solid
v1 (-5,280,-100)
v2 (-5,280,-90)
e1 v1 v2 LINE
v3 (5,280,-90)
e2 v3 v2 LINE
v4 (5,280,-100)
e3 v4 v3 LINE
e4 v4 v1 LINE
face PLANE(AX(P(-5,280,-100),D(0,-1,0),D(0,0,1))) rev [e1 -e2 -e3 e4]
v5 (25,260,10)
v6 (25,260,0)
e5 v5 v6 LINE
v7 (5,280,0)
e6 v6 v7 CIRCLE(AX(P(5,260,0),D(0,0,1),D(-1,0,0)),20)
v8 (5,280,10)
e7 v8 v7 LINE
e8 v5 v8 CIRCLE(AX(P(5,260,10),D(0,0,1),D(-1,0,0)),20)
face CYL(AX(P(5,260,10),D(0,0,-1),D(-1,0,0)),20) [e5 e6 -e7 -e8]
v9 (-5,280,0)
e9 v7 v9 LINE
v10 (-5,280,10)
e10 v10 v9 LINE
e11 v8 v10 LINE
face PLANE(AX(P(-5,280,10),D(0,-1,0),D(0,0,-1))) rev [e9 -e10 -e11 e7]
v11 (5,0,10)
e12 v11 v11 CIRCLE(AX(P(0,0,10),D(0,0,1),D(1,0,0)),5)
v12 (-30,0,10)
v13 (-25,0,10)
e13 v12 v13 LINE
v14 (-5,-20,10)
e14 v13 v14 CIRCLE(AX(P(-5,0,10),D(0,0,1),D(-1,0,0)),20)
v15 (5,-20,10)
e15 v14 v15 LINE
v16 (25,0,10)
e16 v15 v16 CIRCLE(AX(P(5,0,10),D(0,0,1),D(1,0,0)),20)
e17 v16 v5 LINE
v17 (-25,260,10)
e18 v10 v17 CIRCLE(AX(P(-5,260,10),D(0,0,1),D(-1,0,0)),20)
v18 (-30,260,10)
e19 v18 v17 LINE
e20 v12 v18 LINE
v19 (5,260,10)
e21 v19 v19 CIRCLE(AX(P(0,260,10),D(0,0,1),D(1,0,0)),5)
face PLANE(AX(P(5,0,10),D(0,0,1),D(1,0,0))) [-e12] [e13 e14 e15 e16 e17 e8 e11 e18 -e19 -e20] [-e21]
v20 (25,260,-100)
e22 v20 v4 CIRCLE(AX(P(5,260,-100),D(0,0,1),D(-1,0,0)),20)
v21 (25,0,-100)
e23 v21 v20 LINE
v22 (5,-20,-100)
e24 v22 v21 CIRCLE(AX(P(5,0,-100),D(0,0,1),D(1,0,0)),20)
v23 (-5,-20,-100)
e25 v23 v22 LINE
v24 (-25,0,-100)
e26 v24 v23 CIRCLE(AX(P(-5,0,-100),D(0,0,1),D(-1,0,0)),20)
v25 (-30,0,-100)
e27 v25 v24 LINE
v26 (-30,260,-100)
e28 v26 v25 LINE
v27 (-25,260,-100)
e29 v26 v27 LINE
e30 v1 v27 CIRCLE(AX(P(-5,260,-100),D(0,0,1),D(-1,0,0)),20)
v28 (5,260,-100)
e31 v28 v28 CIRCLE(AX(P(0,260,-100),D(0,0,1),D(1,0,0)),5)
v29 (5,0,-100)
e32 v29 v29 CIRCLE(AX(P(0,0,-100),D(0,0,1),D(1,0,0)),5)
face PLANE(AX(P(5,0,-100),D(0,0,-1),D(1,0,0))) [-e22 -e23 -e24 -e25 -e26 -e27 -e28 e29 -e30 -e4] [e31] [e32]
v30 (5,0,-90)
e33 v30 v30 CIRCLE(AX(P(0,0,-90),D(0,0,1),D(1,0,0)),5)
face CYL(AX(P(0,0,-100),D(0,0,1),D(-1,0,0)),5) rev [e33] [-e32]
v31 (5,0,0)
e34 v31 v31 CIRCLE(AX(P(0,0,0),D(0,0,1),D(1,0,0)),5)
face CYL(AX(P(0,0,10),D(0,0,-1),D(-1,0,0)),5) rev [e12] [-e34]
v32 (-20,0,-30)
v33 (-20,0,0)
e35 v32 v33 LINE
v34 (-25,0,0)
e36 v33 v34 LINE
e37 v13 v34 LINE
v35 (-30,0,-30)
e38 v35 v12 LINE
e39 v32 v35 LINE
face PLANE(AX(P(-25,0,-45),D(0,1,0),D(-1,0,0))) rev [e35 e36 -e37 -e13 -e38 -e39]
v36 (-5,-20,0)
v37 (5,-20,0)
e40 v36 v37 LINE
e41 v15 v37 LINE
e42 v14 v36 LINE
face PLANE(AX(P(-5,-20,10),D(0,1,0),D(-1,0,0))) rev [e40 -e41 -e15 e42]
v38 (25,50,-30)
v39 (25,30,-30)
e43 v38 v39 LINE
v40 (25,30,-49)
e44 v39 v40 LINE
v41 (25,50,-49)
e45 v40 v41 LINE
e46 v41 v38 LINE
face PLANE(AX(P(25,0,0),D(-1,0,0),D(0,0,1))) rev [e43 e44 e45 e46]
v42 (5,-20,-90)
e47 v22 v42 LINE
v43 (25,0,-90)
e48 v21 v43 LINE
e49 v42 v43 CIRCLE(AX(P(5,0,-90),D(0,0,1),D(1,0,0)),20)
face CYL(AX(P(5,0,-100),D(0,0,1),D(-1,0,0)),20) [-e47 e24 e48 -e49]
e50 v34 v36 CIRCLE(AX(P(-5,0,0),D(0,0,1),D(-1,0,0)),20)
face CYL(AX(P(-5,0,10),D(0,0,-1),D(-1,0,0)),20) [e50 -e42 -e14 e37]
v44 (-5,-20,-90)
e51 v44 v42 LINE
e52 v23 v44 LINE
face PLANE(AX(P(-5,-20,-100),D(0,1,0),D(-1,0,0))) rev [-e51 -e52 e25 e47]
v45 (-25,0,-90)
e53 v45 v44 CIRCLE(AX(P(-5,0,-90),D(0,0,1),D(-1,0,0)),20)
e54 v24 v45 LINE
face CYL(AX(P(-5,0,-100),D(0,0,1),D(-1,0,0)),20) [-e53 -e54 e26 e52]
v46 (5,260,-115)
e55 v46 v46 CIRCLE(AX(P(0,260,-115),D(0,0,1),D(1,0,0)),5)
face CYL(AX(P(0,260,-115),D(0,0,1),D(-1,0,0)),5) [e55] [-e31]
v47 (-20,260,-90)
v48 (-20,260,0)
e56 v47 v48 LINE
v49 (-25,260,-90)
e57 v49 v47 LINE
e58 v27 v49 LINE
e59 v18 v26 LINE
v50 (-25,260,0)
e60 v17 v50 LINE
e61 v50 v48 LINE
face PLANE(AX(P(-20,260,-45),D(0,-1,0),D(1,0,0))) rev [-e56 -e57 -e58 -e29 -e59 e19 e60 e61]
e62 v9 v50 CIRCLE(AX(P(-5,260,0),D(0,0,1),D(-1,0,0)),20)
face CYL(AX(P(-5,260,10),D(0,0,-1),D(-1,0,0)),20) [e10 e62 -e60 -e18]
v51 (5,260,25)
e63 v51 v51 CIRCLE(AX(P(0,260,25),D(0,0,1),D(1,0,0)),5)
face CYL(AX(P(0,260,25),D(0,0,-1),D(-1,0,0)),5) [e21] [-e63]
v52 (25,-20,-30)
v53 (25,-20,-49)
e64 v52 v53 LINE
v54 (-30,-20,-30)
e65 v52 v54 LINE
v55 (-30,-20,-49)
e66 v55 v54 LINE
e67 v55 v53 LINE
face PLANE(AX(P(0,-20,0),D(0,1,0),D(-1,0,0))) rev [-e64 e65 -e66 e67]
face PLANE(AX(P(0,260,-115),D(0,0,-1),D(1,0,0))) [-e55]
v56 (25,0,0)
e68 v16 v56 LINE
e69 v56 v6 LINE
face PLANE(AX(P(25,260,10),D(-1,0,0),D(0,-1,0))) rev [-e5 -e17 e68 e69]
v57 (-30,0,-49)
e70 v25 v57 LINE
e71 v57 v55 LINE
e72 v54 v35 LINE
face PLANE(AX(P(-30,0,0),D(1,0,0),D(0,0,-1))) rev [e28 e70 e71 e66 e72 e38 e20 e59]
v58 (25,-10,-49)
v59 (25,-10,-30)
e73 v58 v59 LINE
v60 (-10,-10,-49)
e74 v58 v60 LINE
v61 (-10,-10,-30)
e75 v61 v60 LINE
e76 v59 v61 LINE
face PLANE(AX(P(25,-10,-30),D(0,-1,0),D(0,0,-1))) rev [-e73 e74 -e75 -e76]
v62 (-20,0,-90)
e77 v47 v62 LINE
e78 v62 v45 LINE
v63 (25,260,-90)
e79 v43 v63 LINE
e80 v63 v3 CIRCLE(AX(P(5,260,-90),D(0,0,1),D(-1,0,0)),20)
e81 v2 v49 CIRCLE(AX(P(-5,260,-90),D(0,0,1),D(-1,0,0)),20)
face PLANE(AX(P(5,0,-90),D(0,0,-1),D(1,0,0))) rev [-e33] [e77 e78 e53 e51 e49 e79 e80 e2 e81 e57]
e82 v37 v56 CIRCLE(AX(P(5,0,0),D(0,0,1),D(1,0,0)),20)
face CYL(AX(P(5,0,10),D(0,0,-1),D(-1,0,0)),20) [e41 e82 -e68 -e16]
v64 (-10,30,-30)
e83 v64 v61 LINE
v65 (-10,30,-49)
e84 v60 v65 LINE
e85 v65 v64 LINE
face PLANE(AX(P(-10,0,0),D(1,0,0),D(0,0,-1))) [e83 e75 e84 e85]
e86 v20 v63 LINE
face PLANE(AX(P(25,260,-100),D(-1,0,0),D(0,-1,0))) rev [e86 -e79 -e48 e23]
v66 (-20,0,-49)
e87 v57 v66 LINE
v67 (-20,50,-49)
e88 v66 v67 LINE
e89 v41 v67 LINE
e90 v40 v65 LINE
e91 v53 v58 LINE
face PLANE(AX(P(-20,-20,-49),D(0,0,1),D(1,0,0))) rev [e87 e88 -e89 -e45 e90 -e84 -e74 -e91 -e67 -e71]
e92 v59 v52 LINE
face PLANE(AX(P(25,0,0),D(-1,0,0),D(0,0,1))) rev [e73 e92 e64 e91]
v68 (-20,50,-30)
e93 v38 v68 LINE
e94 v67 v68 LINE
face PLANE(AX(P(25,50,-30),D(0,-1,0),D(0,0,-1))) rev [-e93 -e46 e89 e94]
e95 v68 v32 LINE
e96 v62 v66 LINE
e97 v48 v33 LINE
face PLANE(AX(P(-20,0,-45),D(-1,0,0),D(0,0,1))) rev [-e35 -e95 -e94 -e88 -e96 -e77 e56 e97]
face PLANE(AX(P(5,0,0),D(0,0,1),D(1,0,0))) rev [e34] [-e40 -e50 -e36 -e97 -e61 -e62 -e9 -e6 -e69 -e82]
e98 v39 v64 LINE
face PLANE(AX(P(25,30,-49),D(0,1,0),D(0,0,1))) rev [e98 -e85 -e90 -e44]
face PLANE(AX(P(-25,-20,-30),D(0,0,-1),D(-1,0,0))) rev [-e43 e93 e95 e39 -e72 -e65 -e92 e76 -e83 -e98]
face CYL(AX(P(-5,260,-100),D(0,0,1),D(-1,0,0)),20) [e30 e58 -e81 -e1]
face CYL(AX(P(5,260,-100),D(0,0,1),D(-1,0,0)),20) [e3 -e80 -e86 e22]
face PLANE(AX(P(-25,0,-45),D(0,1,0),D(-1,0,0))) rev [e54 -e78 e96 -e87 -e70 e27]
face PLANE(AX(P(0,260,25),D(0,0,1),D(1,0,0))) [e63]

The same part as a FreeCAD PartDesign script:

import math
import FreeCAD as App
import Part
import Sketcher
from FreeCAD import Vector


def add_polygon(sketch, points):
    """Adds a closed chain of lines whose ends are joined by coincident constraints."""
    first, n = sketch.GeometryCount, len(points)
    for a, b in zip(points, points[1:] + points[:1]):
        sketch.addGeometry(Part.LineSegment(App.Vector(*a, 0), App.Vector(*b, 0)), False)
    for i in range(n):
        sketch.addConstraint(Sketcher.Constraint("Coincident", first + i, 2, first + (i + 1) % n, 1))

doc = App.newDocument("Part")
body = doc.addObject("PartDesign::Body", "Body")

sketch1 = body.newObject("Sketcher::SketchObject", "Sketch")
sketch1.AttachmentSupport = (doc.getObject("XY_Plane"), [""])
sketch1.MapMode = "FlatFace"
sketch1.addGeometry(Part.LineSegment(Vector(-5, -20, 0), Vector(5, -20, 0)), False)
sketch1.addGeometry(Part.ArcOfCircle(Part.Circle(Vector(5, 0, 0), Vector(0, 0, 1), 20), math.radians(-90), math.radians(0)), False)
sketch1.addGeometry(Part.LineSegment(Vector(25, 0, 0), Vector(25, 260, 0)), False)
sketch1.addGeometry(Part.ArcOfCircle(Part.Circle(Vector(5, 260, 0), Vector(0, 0, 1), 20), math.radians(0), math.radians(90)), False)
sketch1.addGeometry(Part.LineSegment(Vector(5, 280, 0), Vector(-5, 280, 0)), False)
sketch1.addGeometry(Part.ArcOfCircle(Part.Circle(Vector(-5, 260, 0), Vector(0, 0, 1), 20), math.radians(90), math.radians(180)), False)
sketch1.addGeometry(Part.LineSegment(Vector(-25, 260, 0), Vector(-25, 0, 0)), False)
sketch1.addGeometry(Part.ArcOfCircle(Part.Circle(Vector(-5, 0, 0), Vector(0, 0, 1), 20), math.radians(180), math.radians(270)), False)
sketch1.addGeometry(Part.Circle(Vector(0, 0, 0), Vector(0, 0, 1), 5), False)
sketch1.addConstraint(Sketcher.Constraint("Tangent", 0, 2, 1, 1))
sketch1.addConstraint(Sketcher.Constraint("Tangent", 1, 2, 2, 1))
sketch1.addConstraint(Sketcher.Constraint("Tangent", 2, 2, 3, 1))
sketch1.addConstraint(Sketcher.Constraint("Tangent", 3, 2, 4, 1))
sketch1.addConstraint(Sketcher.Constraint("Tangent", 4, 2, 5, 1))
sketch1.addConstraint(Sketcher.Constraint("Tangent", 5, 2, 6, 1))
sketch1.addConstraint(Sketcher.Constraint("Tangent", 6, 2, 7, 1))
sketch1.addConstraint(Sketcher.Constraint("Tangent", 7, 2, 0, 1))
sketch1.addConstraint(Sketcher.Constraint("Horizontal", 0))
sketch1.addConstraint(Sketcher.Constraint("Vertical", 2))
sketch1.addConstraint(Sketcher.Constraint("Horizontal", 4))
sketch1.addConstraint(Sketcher.Constraint("Vertical", 6))
sketch1.addConstraint(Sketcher.Constraint("Coincident", 8, 3, -1, 1))
sketch1.addConstraint(Sketcher.Constraint("Equal", 1, 3))
sketch1.addConstraint(Sketcher.Constraint("Equal", 3, 5))
sketch1.addConstraint(Sketcher.Constraint("Equal", 5, 7))
sketch1.addConstraint(Sketcher.Constraint("Symmetric", 1, 3, 7, 3, -1, 1))
sketch1.addConstraint(Sketcher.Constraint("Diameter", 8, 10.0))
sketch1.addConstraint(Sketcher.Constraint("Radius", 1, 20.0))
sketch1.addConstraint(Sketcher.Constraint("DistanceX", 0, 1, 0, 2, 10.0))
sketch1.addConstraint(Sketcher.Constraint("DistanceY", 2, 1, 2, 2, 260.0))
pad1 = body.newObject("PartDesign::Pad", "Pad")
pad1.Profile = sketch1
pad1.Length = 10

sketch2 = body.newObject("Sketcher::SketchObject", "Sketch001")
sketch2.AttachmentSupport = (doc.getObject("XY_Plane"), [""])
sketch2.MapMode = "FlatFace"
sketch2.AttachmentOffset = App.Placement(Vector(0, 0, 10), App.Rotation())
sketch2.addGeometry(Part.Circle(Vector(0, 260, 0), Vector(0, 0, 1), 5), False)
sketch2.addConstraint(Sketcher.Constraint("PointOnObject", 0, 3, -2))
sketch2.addConstraint(Sketcher.Constraint("Diameter", 0, 10.0))
sketch2.addConstraint(Sketcher.Constraint("DistanceY", -1, 1, 0, 3, 260.0))
pad2 = body.newObject("PartDesign::Pad", "Pad001")
pad2.Profile = sketch2
pad2.Length = 15

sketch3 = body.newObject("Sketcher::SketchObject", "Sketch002")
sketch3.AttachmentSupport = (doc.getObject("XY_Plane"), [""])
sketch3.MapMode = "FlatFace"
add_polygon(sketch3, [(-20, 260), (-20, 0), (-25, 0), (-25, 260)])
sketch3.addConstraint(Sketcher.Constraint("Vertical", 0))
sketch3.addConstraint(Sketcher.Constraint("Horizontal", 1))
sketch3.addConstraint(Sketcher.Constraint("Vertical", 2))
sketch3.addConstraint(Sketcher.Constraint("Horizontal", 3))
sketch3.addConstraint(Sketcher.Constraint("PointOnObject", 0, 2, -1))
sketch3.addConstraint(Sketcher.Constraint("DistanceX", 1, 2, 1, 1, 5.0))
sketch3.addConstraint(Sketcher.Constraint("DistanceY", 0, 2, 0, 1, 260.0))
sketch3.addConstraint(Sketcher.Constraint("DistanceX", 0, 2, -1, 1, 20.0))
pad3 = body.newObject("PartDesign::Pad", "Pad002")
pad3.Profile = sketch3
pad3.Length = 45
pad3.Reversed = True
doc.recompute()

datumplane = body.newObject("PartDesign::Plane", "DatumPlane")
datumplane.AttachmentSupport = (doc.getObject("XY_Plane"), [""])
datumplane.MapMode = "FlatFace"
datumplane.AttachmentOffset = App.Placement(Vector(0, 0, -45), App.Rotation())
mirrored = body.newObject("PartDesign::Mirrored", "Mirrored")
mirrored.Originals = [pad1, pad2, pad3]
mirrored.MirrorPlane = (datumplane, [""])
body.Tip = mirrored

sketch4 = body.newObject("Sketcher::SketchObject", "Sketch003")
sketch4.AttachmentSupport = (doc.getObject("XZ_Plane"), [""])
sketch4.MapMode = "FlatFace"
add_polygon(sketch4, [(-25, -30), (-25, -49), (-20, -49), (-20, -30)])
sketch4.addConstraint(Sketcher.Constraint("Vertical", 0))
sketch4.addConstraint(Sketcher.Constraint("Horizontal", 1))
sketch4.addConstraint(Sketcher.Constraint("Vertical", 2))
sketch4.addConstraint(Sketcher.Constraint("Horizontal", 3))
sketch4.addConstraint(Sketcher.Constraint("DistanceX", 1, 1, 1, 2, 5.0))
sketch4.addConstraint(Sketcher.Constraint("DistanceY", 0, 2, 0, 1, 19.0))
sketch4.addConstraint(Sketcher.Constraint("DistanceX", 0, 2, -1, 1, 25.0))
sketch4.addConstraint(Sketcher.Constraint("DistanceY", 0, 2, -1, 1, 49.0))
pad4 = body.newObject("PartDesign::Pad", "Pad003")
pad4.Profile = sketch4
pad4.Length = 20

sketch5 = body.newObject("Sketcher::SketchObject", "Sketch004")
sketch5.AttachmentSupport = (doc.getObject("YZ_Plane"), [""])
sketch5.MapMode = "FlatFace"
sketch5.AttachmentOffset = App.Placement(Vector(0, 0, -20), App.Rotation())
add_polygon(sketch5, [(-10, -30), (-20, -30), (-20, -49), (-10, -49)])
add_polygon(sketch5, [(50, -30), (30, -30), (30, -49), (50, -49)])
sketch5.addConstraint(Sketcher.Constraint("Horizontal", 0))
sketch5.addConstraint(Sketcher.Constraint("Vertical", 1))
sketch5.addConstraint(Sketcher.Constraint("Horizontal", 2))
sketch5.addConstraint(Sketcher.Constraint("Vertical", 3))
sketch5.addConstraint(Sketcher.Constraint("Horizontal", 4))
sketch5.addConstraint(Sketcher.Constraint("Vertical", 5))
sketch5.addConstraint(Sketcher.Constraint("Horizontal", 6))
sketch5.addConstraint(Sketcher.Constraint("Vertical", 7))
sketch5.addConstraint(Sketcher.Constraint("Horizontal", 3, 2, 4, 2))
sketch5.addConstraint(Sketcher.Constraint("Horizontal", 2, 2, 5, 2))
sketch5.addConstraint(Sketcher.Constraint("DistanceX", 0, 2, 0, 1, 10.0))
sketch5.addConstraint(Sketcher.Constraint("DistanceX", 4, 2, 4, 1, 20.0))
sketch5.addConstraint(Sketcher.Constraint("DistanceY", 1, 2, 1, 1, 19.0))
sketch5.addConstraint(Sketcher.Constraint("DistanceX", 0, 2, -1, 1, 20.0))
sketch5.addConstraint(Sketcher.Constraint("DistanceY", 0, 2, -1, 1, 30.0))
sketch5.addConstraint(Sketcher.Constraint("DistanceX", -1, 1, 4, 2, 30.0))
pad5 = body.newObject("PartDesign::Pad", "Pad004")
pad5.Profile = sketch5
pad5.Length = 45

sketch6 = body.newObject("Sketcher::SketchObject", "Sketch005")
sketch6.AttachmentSupport = (doc.getObject("YZ_Plane"), [""])
sketch6.MapMode = "FlatFace"
sketch6.AttachmentOffset = App.Placement(Vector(0, 0, -20), App.Rotation())
add_polygon(sketch6, [(30, -30), (-10, -30), (-10, -49), (30, -49)])
sketch6.addConstraint(Sketcher.Constraint("Horizontal", 0))
sketch6.addConstraint(Sketcher.Constraint("Vertical", 1))
sketch6.addConstraint(Sketcher.Constraint("Horizontal", 2))
sketch6.addConstraint(Sketcher.Constraint("Vertical", 3))
sketch6.addConstraint(Sketcher.Constraint("DistanceX", 0, 2, 0, 1, 40.0))
sketch6.addConstraint(Sketcher.Constraint("DistanceY", 1, 2, 1, 1, 19.0))
sketch6.addConstraint(Sketcher.Constraint("DistanceX", 0, 2, -1, 1, 10.0))
sketch6.addConstraint(Sketcher.Constraint("DistanceY", 0, 2, -1, 1, 30.0))
pad6 = body.newObject("PartDesign::Pad", "Pad005")
pad6.Profile = sketch6
pad6.Length = 10

sketch7 = body.newObject("Sketcher::SketchObject", "Sketch006")
sketch7.AttachmentSupport = (doc.getObject("YZ_Plane"), [""])
sketch7.MapMode = "FlatFace"
sketch7.AttachmentOffset = App.Placement(Vector(0, 0, -25), App.Rotation())
add_polygon(sketch7, [(0, -30), (0, 10), (260, 10), (260, -100), (0, -100), (0, -49), (-20, -49), (-20, -30)])
sketch7.addConstraint(Sketcher.Constraint("Vertical", 0))
sketch7.addConstraint(Sketcher.Constraint("Horizontal", 1))
sketch7.addConstraint(Sketcher.Constraint("Vertical", 2))
sketch7.addConstraint(Sketcher.Constraint("Horizontal", 3))
sketch7.addConstraint(Sketcher.Constraint("Vertical", 4))
sketch7.addConstraint(Sketcher.Constraint("Horizontal", 5))
sketch7.addConstraint(Sketcher.Constraint("Vertical", 6))
sketch7.addConstraint(Sketcher.Constraint("Horizontal", 7))
sketch7.addConstraint(Sketcher.Constraint("PointOnObject", 0, 2, -2))
sketch7.addConstraint(Sketcher.Constraint("PointOnObject", 3, 2, -2))
sketch7.addConstraint(Sketcher.Constraint("DistanceX", 1, 1, 1, 2, 260.0))
sketch7.addConstraint(Sketcher.Constraint("DistanceX", 5, 2, 5, 1, 20.0))
sketch7.addConstraint(Sketcher.Constraint("DistanceY", 0, 1, 0, 2, 40.0))
sketch7.addConstraint(Sketcher.Constraint("DistanceY", 2, 2, 2, 1, 110.0))
sketch7.addConstraint(Sketcher.Constraint("DistanceY", 4, 1, 4, 2, 51.0))
sketch7.addConstraint(Sketcher.Constraint("DistanceY", -1, 1, 0, 2, 10.0))
pad7 = body.newObject("PartDesign::Pad", "Pad006")
pad7.Profile = sketch7
pad7.Length = 5
pad7.Reversed = True

doc.recompute()
